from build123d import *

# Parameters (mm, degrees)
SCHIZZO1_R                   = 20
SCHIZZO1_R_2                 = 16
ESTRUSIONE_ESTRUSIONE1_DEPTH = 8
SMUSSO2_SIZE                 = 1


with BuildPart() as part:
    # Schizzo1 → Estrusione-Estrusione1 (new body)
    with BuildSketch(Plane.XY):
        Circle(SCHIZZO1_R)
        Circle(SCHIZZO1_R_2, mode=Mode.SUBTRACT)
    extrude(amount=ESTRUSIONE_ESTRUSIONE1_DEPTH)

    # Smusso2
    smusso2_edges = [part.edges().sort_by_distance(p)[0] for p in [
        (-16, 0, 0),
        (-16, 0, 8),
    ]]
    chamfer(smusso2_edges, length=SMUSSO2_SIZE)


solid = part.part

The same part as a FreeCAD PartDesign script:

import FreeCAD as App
import Part
import Sketcher

V = App.Vector
Q = App.Units.Quantity


def edges_at(feature, points):
    """Names of the edges that pass closest to the given points."""
    edges = feature.Shape.Edges
    near = lambda p: min(range(len(edges)), key=lambda i: edges[i].distToShape(Part.Vertex(*p))[0])
    return sorted({f"Edge{near(p) + 1}" for p in points})

doc = App.newDocument("Part")
params = doc.addObject("Spreadsheet::Sheet", "Params")
for row, (alias, value) in enumerate([
    ("sketch1_diameter", "40 mm"),
    ("sketch1_diameter2", "32 mm"),
    ("pad1_length", "8 mm"),
    ("chamfer_size", "1 mm"),
], start=1):
    params.set(f"A{row}", alias)
    params.set(f"B{row}", "=" + value)
    params.setAlias(f"B{row}", alias)

body = doc.addObject("PartDesign::Body", "Body")

# Sketch on XY plane
sketch1 = body.newObject("Sketcher::SketchObject", "Sketch")
sketch1.AttachmentSupport = (doc.getObject("XY_Plane"), [""])
sketch1.MapMode = "FlatFace"
sketch1.addGeometry([
    Part.Circle(V(0, 0, 0), V(0, 0, 1), 20),
    Part.Circle(V(0, 0, 0), V(0, 0, 1), 16),
], False)
sketch1.addConstraint([
    Sketcher.Constraint("Coincident", 0, 3, -1, 1),
    Sketcher.Constraint("Coincident", 1, 3, -1, 1),
    Sketcher.Constraint("Diameter", 0, Q("40 mm")),
    Sketcher.Constraint("Diameter", 1, Q("32 mm")),
])
sketch1.setExpression("Constraints[2]", "Params.sketch1_diameter")
sketch1.setExpression("Constraints[3]", "Params.sketch1_diameter2")
pad1 = body.newObject("PartDesign::Pad", "Pad")
pad1.Profile = sketch1
pad1.setExpression("Length", "Params.pad1_length")
doc.recompute()

chamfer = body.newObject("PartDesign::Chamfer", "Chamfer")
chamfer.Base = (pad1, edges_at(pad1, [(-16, 0, 0), (-16, 0, 8)]))
chamfer.setExpression("Size", "Params.chamfer_size")

doc.recompute()
